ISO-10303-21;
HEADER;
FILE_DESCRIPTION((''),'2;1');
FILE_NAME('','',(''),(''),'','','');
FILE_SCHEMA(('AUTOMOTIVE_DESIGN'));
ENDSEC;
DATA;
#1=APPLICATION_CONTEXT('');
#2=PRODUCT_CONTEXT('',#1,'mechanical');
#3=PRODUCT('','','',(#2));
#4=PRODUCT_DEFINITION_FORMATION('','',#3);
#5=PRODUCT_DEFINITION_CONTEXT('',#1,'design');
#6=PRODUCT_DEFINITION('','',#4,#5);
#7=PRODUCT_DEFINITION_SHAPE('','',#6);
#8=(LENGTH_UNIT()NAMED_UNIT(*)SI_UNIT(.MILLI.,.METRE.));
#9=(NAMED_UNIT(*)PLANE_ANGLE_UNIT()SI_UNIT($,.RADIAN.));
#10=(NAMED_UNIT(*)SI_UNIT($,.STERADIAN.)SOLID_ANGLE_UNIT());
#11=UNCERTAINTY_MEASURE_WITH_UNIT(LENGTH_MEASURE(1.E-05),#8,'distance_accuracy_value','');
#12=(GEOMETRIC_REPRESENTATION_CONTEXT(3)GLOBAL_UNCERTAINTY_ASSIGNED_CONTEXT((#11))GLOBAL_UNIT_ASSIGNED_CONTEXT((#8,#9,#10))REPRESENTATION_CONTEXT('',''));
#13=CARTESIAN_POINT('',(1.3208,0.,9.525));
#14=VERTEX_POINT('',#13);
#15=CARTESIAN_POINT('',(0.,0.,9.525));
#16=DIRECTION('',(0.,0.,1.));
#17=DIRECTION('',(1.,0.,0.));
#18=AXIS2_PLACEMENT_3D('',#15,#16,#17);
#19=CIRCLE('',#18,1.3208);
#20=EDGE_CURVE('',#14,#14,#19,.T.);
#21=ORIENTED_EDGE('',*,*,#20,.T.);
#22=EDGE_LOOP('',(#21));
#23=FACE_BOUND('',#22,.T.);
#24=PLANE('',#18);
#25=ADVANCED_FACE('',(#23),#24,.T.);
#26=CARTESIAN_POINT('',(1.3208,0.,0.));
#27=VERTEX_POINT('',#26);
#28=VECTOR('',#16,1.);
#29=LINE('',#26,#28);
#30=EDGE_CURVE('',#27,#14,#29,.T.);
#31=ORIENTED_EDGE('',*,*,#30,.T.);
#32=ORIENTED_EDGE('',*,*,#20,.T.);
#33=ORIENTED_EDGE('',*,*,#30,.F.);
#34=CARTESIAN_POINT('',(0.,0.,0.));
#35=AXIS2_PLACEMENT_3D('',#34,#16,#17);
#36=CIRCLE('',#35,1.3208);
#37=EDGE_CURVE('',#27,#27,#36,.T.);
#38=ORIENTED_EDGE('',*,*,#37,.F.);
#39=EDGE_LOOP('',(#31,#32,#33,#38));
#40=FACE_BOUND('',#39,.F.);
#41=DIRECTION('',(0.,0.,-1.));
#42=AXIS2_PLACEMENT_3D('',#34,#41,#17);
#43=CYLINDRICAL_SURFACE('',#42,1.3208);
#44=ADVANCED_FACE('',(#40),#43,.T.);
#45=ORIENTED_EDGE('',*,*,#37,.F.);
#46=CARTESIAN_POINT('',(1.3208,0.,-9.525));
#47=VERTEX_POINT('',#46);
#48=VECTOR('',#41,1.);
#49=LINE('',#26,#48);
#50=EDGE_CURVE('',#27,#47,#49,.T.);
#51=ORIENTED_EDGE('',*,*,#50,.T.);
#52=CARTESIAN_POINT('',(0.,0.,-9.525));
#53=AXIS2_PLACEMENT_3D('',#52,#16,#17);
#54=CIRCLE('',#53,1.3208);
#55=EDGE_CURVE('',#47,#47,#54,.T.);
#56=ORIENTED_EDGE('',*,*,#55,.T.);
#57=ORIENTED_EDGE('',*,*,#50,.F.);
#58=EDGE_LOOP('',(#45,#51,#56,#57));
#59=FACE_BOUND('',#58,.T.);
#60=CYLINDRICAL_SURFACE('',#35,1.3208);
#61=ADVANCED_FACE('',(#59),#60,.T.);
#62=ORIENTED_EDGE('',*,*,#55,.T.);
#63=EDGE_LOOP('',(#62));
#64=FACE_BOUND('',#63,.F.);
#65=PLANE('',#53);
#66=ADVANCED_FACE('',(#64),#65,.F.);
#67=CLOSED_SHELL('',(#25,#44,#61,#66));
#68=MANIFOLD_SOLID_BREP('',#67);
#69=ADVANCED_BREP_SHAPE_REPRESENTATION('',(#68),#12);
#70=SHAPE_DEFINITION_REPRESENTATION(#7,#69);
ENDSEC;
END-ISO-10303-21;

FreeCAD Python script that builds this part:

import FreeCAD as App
import Part
import Sketcher

V = App.Vector
Q = App.Units.Quantity

doc = App.newDocument("Part")
params = doc.addObject("Spreadsheet::Sheet", "Params")
for row, (alias, value) in enumerate([
    ("sketch1_diameter", "0.104 in"),
    ("pad1_length", "0.75 in"),
], start=1):
    params.set(f"A{row}", alias)
    params.set(f"B{row}", "=" + value)
    params.setAlias(f"B{row}", alias)

body = doc.addObject("PartDesign::Body", "Body")

sketch1 = body.newObject("Sketcher::SketchObject", "Sketch")
sketch1.AttachmentSupport = (doc.getObject("XY_Plane"), [""])
sketch1.MapMode = "FlatFace"
sketch1.addGeometry(Part.Circle(V(0, 0, 0), V(0, 0, 1), 1.3208), False)
sketch1.addConstraint(Sketcher.Constraint("Coincident", 0, 3, -1, 1))
sketch1.addConstraint(Sketcher.Constraint("Diameter", 0, Q("0.104 in")))
sketch1.setExpression("Constraints[1]", "Params.sketch1_diameter")
pad1 = body.newObject("PartDesign::Pad", "Pad")
pad1.Profile = sketch1
pad1.setExpression("Length", "Params.pad1_length")
pad1.Midplane = True

doc.recompute()
